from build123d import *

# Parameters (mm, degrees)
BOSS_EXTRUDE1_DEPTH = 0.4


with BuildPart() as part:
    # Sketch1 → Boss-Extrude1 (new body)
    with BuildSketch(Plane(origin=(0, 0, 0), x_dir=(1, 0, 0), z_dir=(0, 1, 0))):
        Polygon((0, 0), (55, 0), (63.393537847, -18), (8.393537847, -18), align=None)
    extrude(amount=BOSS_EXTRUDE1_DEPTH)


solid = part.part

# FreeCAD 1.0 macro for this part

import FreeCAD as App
import Part
import Sketcher
Q = App.Units.Quantity


def add_polygon(sketch, points):
    """Adds a closed chain of lines whose ends are joined by coincident constraints."""
    first, n = sketch.GeometryCount, len(points)
    for a, b in zip(points, points[1:] + points[:1]):
        sketch.addGeometry(Part.LineSegment(App.Vector(*a, 0), App.Vector(*b, 0)), False)
    for i in range(n):
        sketch.addConstraint(Sketcher.Constraint("Coincident", first + i, 2, first + (i + 1) % n, 1))

doc = App.newDocument("Part")
body = doc.addObject("PartDesign::Body", "Body")

# Sketch on XZ plane
sketch1 = body.newObject("Sketcher::SketchObject", "Sketch")
sketch1.AttachmentSupport = (doc.getObject("XZ_Plane"), [""])
sketch1.MapMode = "FlatFace"
add_polygon(sketch1, [(55, 0), (0, 0), (8.393538, 18), (63.393538, 18)])  # lines 0-3
sketch1.addConstraint([
    Sketcher.Constraint("Horizontal", 0),
    Sketcher.Constraint("Horizontal", 2),
    Sketcher.Constraint("Coincident", 0, 2, -1, 1),
    Sketcher.Constraint("Parallel", 1, 3),
    Sketcher.Constraint("DistanceX", 0, 2, 0, 1, 55.0),
    Sketcher.Constraint("Angle", 1, Q("65 deg")),
    Sketcher.Constraint("DistanceY", -1, 1, 1, 2, 18.0),
])
pad1 = body.newObject("PartDesign::Pad", "Pad")
pad1.Profile = sketch1
pad1.Length = 0.4
pad1.Reversed = True

doc.recompute()
